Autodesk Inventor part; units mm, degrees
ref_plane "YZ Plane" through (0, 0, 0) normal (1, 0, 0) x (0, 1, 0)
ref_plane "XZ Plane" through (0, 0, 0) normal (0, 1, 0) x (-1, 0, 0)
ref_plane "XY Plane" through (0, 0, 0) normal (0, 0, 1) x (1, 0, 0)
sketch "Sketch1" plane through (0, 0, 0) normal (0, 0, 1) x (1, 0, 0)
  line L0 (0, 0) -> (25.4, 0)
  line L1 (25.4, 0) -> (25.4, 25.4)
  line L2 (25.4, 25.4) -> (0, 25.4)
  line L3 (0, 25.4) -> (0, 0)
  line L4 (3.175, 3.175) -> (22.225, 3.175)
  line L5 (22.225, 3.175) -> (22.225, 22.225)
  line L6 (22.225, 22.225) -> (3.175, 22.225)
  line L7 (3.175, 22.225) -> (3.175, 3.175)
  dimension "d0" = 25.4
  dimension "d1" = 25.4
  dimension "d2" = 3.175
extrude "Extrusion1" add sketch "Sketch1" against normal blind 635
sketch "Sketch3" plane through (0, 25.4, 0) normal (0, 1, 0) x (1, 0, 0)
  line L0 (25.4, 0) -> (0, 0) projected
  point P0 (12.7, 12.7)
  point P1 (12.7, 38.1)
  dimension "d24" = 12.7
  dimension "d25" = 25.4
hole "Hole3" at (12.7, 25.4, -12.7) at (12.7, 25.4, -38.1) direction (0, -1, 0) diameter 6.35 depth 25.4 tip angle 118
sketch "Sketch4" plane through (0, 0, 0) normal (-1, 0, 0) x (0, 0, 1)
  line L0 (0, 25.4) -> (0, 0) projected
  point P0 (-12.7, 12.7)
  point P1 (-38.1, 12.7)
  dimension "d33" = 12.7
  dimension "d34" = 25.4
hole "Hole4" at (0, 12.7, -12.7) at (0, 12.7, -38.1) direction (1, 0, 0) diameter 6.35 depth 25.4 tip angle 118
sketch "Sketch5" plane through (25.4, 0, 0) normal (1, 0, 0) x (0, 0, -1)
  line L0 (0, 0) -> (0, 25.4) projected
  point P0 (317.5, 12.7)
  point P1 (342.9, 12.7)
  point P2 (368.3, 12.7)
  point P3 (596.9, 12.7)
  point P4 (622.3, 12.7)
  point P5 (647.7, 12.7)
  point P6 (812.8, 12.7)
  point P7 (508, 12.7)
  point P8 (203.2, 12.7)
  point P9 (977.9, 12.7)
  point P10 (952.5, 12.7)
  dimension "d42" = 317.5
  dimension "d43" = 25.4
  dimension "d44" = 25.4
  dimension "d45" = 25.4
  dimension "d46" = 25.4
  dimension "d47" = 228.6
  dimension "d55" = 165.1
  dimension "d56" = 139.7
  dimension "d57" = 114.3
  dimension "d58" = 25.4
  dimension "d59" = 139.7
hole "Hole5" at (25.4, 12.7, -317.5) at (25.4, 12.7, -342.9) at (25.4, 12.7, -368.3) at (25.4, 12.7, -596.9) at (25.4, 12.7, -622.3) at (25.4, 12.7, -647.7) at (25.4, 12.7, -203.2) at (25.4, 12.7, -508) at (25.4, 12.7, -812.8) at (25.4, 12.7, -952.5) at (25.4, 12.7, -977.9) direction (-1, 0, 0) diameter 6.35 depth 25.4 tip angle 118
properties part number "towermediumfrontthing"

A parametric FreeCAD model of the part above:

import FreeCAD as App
import Part
import Sketcher

V = App.Vector
Q = App.Units.Quantity


def add_polygon(sketch, points):
    """Adds a closed chain of lines whose ends are joined by coincident constraints."""
    first, n = sketch.GeometryCount, len(points)
    for a, b in zip(points, points[1:] + points[:1]):
        sketch.addGeometry(Part.LineSegment(App.Vector(*a, 0), App.Vector(*b, 0)), False)
    for i in range(n):
        sketch.addConstraint(Sketcher.Constraint("Coincident", first + i, 2, first + (i + 1) % n, 1))

doc = App.newDocument("Part")
body = doc.addObject("PartDesign::Body", "Body")

sketch1 = body.newObject("Sketcher::SketchObject", "Sketch")
sketch1.AttachmentSupport = (doc.getObject("XY_Plane"), [""])
sketch1.MapMode = "FlatFace"
add_polygon(sketch1, [(0, 25), (0, 0), (25, 0), (25, 25)])
add_polygon(sketch1, [(22, 3), (3, 3), (3, 22), (22, 22)])
sketch1.addConstraint([
    Sketcher.Constraint("Vertical", 0),
    Sketcher.Constraint("Horizontal", 1),
    Sketcher.Constraint("Vertical", 2),
    Sketcher.Constraint("Horizontal", 3),
    Sketcher.Constraint("Horizontal", 4),
    Sketcher.Constraint("Vertical", 5),
    Sketcher.Constraint("Horizontal", 6),
    Sketcher.Constraint("Vertical", 7),
    Sketcher.Constraint("Coincident", 0, 2, -1, 1),
    Sketcher.Constraint("Equal", 3, 0),
    Sketcher.Constraint("Equal", 6, 5),
    Sketcher.Constraint("DistanceX", 1, 1, 1, 2, Q("1 in")),
    Sketcher.Constraint("DistanceX", -1, 1, 4, 2, Q("0.125 in")),
    Sketcher.Constraint("DistanceY", -1, 1, 4, 2, Q("0.125 in")),
    Sketcher.Constraint("DistanceY", 5, 2, 3, 2, Q("0.125 in")),
])
pad1 = body.newObject("PartDesign::Pad", "Pad")
pad1.Profile = sketch1
pad1.Length = Q("25 in")
pad1.Reversed = True

sketch2 = body.newObject("Sketcher::SketchObject", "Sketch001")
sketch2.AttachmentSupport = (doc.getObject("XZ_Plane"), [""])
sketch2.MapMode = "FlatFace"
sketch2.AttachmentOffset = App.Placement(V(0, 0, -1 * 25.4), App.Rotation())
sketch2.addGeometry([
    Part.Circle(V(12.7, -12.7, 0), V(0, 0, 1), 3.2),
    Part.Circle(V(12.7, -38.1, 0), V(0, 0, 1), 3.2),
], False)
sketch2.addConstraint([
    Sketcher.Constraint("Equal", 0, 1),
    Sketcher.Constraint("Vertical", 0, 3, 1, 3),
    Sketcher.Constraint("Diameter", 0, Q("0.25 in")),
    Sketcher.Constraint("DistanceY", 1, 3, 0, 3, Q("1 in")),
    Sketcher.Constraint("DistanceX", -1, 1, 0, 3, Q("0.5 in")),
    Sketcher.Constraint("DistanceY", 0, 3, -1, 1, Q("0.5 in")),
])
doc.recompute()
hole = body.newObject("PartDesign::Hole", "Hole")
hole.Profile = sketch2
hole.ThreadType = "None"
hole.Diameter = Q("0.25 in")
hole.DepthType = "Dimension"
hole.Depth = Q("1 in")
hole.DrillPoint = "Angled"
hole.DrillPointAngle = 118
hole.Reversed = True

sketch3 = body.newObject("Sketcher::SketchObject", "Sketch002")
sketch3.AttachmentSupport = (doc.getObject("YZ_Plane"), [""])
sketch3.MapMode = "FlatFace"
sketch3.addGeometry([
    Part.Circle(V(12.7, -12.7, 0), V(0, 0, 1), 3.2),
    Part.Circle(V(12.7, -38.1, 0), V(0, 0, 1), 3.2),
], False)
sketch3.addConstraint([
    Sketcher.Constraint("Equal", 0, 1),
    Sketcher.Constraint("Vertical", 0, 3, 1, 3),
    Sketcher.Constraint("Diameter", 0, Q("0.25 in")),
    Sketcher.Constraint("DistanceY", 1, 3, 0, 3, Q("1 in")),
    Sketcher.Constraint("DistanceX", -1, 1, 0, 3, Q("0.5 in")),
    Sketcher.Constraint("DistanceY", 0, 3, -1, 1, Q("0.5 in")),
])
doc.recompute()
hole2 = body.newObject("PartDesign::Hole", "Hole001")
hole2.Profile = sketch3
hole2.ThreadType = "None"
hole2.Diameter = Q("0.25 in")
hole2.DepthType = "Dimension"
hole2.Depth = Q("1 in")
hole2.DrillPoint = "Angled"
hole2.DrillPointAngle = 118
hole2.Reversed = True

sketch4 = body.newObject("Sketcher::SketchObject", "Sketch003")
sketch4.AttachmentSupport = (doc.getObject("YZ_Plane"), [""])
sketch4.MapMode = "FlatFace"
sketch4.AttachmentOffset = App.Placement(V(0, 0, 1 * 25.4), App.Rotation())
sketch4.addGeometry([
    Part.Circle(V(12.7, -317.5, 0), V(0, 0, 1), 3.2),
    Part.Circle(V(12.7, -342.9, 0), V(0, 0, 1), 3.2),
    Part.Circle(V(12.7, -368.3, 0), V(0, 0, 1), 3.2),
    Part.Circle(V(12.7, -596.9, 0), V(0, 0, 1), 3.2),
    Part.Circle(V(12.7, -622.3, 0), V(0, 0, 1), 3.2),
    Part.Circle(V(12.7, -647.7, 0), V(0, 0, 1), 3.2),
    Part.Circle(V(12.7, -203.2, 0), V(0, 0, 1), 3.2),
    Part.Circle(V(12.7, -508, 0), V(0, 0, 1), 3.2),
    Part.Circle(V(12.7, -812.8, 0), V(0, 0, 1), 3.2),
    Part.Circle(V(12.7, -952.5, 0), V(0, 0, 1), 3.2),
    Part.Circle(V(12.7, -977.9, 0), V(0, 0, 1), 3.2),
], False)
sketch4.addConstraint([
    Sketcher.Constraint("Equal", 0, 1),
    Sketcher.Constraint("Equal", 1, 2),
    Sketcher.Constraint("Equal", 2, 3),
    Sketcher.Constraint("Equal", 3, 4),
    Sketcher.Constraint("Equal", 4, 5),
    Sketcher.Constraint("Equal", 5, 6),
    Sketcher.Constraint("Equal", 6, 7),
    Sketcher.Constraint("Equal", 7, 8),
    Sketcher.Constraint("Equal", 8, 9),
    Sketcher.Constraint("Equal", 9, 10),
    Sketcher.Constraint("Vertical", 0, 3, 1, 3),
    Sketcher.Constraint("Vertical", 1, 3, 2, 3),
    Sketcher.Constraint("Vertical", 2, 3, 3, 3),
    Sketcher.Constraint("Vertical", 3, 3, 4, 3),
    Sketcher.Constraint("Vertical", 4, 3, 5, 3),
    Sketcher.Constraint("Vertical", 5, 3, 6, 3),
    Sketcher.Constraint("Vertical", 6, 3, 7, 3),
    Sketcher.Constraint("Vertical", 7, 3, 8, 3),
    Sketcher.Constraint("Vertical", 8, 3, 9, 3),
    Sketcher.Constraint("Vertical", 9, 3, 10, 3),
    Sketcher.Constraint("Diameter", 0, Q("0.25 in")),
    Sketcher.Constraint("DistanceY", 6, 3, -1, 1, Q("8 in")),
    Sketcher.Constraint("DistanceY", 7, 3, -1, 1, Q("20 in")),
    Sketcher.Constraint("DistanceY", 8, 3, -1, 1, Q("32 in")),
    Sketcher.Constraint("DistanceY", 1, 3, 0, 3, Q("1 in")),
    Sketcher.Constraint("DistanceY", 2, 3, 1, 3, Q("1 in")),
    Sketcher.Constraint("DistanceY", 3, 3, 2, 3, Q("9 in")),
    Sketcher.Constraint("DistanceY", 4, 3, 3, 3, Q("1 in")),
    Sketcher.Constraint("DistanceY", 5, 3, 4, 3, Q("1 in")),
    Sketcher.Constraint("DistanceY", 9, 3, 5, 3, Q("12 in")),
    Sketcher.Constraint("DistanceY", 10, 3, 9, 3, Q("1 in")),
    Sketcher.Constraint("DistanceX", -1, 1, 0, 3, Q("0.5 in")),
    Sketcher.Constraint("DistanceY", 0, 3, -1, 1, Q("12.5 in")),
])
doc.recompute()
hole3 = body.newObject("PartDesign::Hole", "Hole002")
hole3.Profile = sketch4
hole3.ThreadType = "None"
hole3.Diameter = Q("0.25 in")
hole3.DepthType = "Dimension"
hole3.Depth = Q("1 in")
hole3.DrillPoint = "Angled"
hole3.DrillPointAngle = 118

doc.recompute()
